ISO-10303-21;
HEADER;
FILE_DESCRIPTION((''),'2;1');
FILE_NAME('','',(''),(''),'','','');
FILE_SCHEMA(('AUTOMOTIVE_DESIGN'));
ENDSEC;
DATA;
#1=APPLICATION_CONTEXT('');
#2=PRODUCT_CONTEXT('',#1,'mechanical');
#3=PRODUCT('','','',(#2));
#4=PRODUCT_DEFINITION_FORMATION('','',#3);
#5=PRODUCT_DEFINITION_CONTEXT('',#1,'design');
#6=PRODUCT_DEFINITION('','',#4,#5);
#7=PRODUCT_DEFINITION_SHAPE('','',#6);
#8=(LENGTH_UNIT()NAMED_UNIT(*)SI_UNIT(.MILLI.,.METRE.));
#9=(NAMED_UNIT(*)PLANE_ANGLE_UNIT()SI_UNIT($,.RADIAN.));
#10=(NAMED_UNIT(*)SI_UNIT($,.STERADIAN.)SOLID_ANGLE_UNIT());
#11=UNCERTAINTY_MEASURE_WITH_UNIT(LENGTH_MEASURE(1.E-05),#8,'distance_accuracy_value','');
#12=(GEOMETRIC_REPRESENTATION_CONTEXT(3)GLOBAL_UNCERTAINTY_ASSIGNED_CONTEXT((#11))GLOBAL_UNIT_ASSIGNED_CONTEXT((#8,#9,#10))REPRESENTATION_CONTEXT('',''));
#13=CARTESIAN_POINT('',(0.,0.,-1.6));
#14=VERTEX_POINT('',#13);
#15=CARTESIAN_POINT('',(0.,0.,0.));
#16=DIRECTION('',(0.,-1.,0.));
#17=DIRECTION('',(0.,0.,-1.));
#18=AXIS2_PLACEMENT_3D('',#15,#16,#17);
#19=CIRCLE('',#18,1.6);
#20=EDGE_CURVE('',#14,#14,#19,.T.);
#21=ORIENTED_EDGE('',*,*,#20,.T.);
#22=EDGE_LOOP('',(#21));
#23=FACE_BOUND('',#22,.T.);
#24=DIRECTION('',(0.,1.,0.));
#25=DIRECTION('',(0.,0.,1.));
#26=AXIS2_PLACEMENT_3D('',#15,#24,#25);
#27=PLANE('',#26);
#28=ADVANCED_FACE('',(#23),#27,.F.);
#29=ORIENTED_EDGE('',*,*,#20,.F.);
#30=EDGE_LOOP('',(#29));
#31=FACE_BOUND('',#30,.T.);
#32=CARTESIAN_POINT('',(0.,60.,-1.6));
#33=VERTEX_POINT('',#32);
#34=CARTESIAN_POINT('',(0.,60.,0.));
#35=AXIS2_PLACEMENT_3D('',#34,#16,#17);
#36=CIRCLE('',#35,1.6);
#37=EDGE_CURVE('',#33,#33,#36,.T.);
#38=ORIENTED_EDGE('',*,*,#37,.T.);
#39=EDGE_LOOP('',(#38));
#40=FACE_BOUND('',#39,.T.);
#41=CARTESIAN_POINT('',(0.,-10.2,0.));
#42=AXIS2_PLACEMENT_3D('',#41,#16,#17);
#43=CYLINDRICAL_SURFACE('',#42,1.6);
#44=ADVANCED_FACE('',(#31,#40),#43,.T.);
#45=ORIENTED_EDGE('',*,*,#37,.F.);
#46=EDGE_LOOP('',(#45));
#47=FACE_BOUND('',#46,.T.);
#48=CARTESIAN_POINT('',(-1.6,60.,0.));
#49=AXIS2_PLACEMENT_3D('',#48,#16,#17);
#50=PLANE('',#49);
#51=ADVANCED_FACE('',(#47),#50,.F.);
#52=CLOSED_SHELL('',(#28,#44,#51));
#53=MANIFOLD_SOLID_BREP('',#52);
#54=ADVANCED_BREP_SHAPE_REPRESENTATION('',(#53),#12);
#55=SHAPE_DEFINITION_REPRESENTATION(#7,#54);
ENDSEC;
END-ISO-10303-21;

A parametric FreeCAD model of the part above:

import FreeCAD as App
import Part
import Sketcher
from FreeCAD import Vector
Q = App.Units.Quantity

doc = App.newDocument("Part")
params = doc.addObject("Spreadsheet::Sheet", "Params")
for row, (alias, value) in enumerate([
    ("sketch1_height", "60 mm"),
    ("sketch1_width", "1.6 mm"),
    ("revolution_angle", "360 deg"),
], start=1):
    params.set(f"A{row}", alias)
    params.set(f"B{row}", "=" + value)
    params.setAlias(f"B{row}", alias)

body = doc.addObject("PartDesign::Body", "Body")

# Sketch on XY plane
sketch1 = body.newObject("Sketcher::SketchObject", "Sketch")
sketch1.AttachmentSupport = (doc.getObject("XY_Plane"), [""])
sketch1.MapMode = "FlatFace"
sketch1.addGeometry(Part.LineSegment(Vector(-1.6, 60, 0), Vector(-1.6, 0, 0)), False)
sketch1.addGeometry(Part.LineSegment(Vector(-1.6, 0, 0), Vector(0, 0, 0)), False)
sketch1.addGeometry(Part.LineSegment(Vector(0, 0, 0), Vector(0, 60, 0)), False)
sketch1.addGeometry(Part.LineSegment(Vector(0, 60, 0), Vector(-1.6, 60, 0)), False)
sketch1.addConstraint(Sketcher.Constraint("Coincident", 0, 2, 1, 1))
sketch1.addConstraint(Sketcher.Constraint("Coincident", 1, 2, 2, 1))
sketch1.addConstraint(Sketcher.Constraint("Coincident", 2, 2, 3, 1))
sketch1.addConstraint(Sketcher.Constraint("Coincident", 3, 2, 0, 1))
sketch1.addConstraint(Sketcher.Constraint("Vertical", 0))
sketch1.addConstraint(Sketcher.Constraint("Horizontal", 1))
sketch1.addConstraint(Sketcher.Constraint("Vertical", 2))
sketch1.addConstraint(Sketcher.Constraint("Horizontal", 3))
sketch1.addConstraint(Sketcher.Constraint("Coincident", 1, 2, -1, 1))
sketch1.addConstraint(Sketcher.Constraint("DistanceY", 0, 2, 0, 1, Q("60 mm")))
sketch1.addConstraint(Sketcher.Constraint("DistanceX", 1, 1, 1, 2, Q("1.6 mm")))
sketch1.setExpression("Constraints[9]", "Params.sketch1_height")
sketch1.setExpression("Constraints[10]", "Params.sketch1_width")
revolution = body.newObject("PartDesign::Revolution", "Revolution")
revolution.Profile = sketch1
revolution.ReferenceAxis = (sketch1, ["V_Axis"])
revolution.setExpression("Angle", "Params.revolution_angle")

doc.recompute()
